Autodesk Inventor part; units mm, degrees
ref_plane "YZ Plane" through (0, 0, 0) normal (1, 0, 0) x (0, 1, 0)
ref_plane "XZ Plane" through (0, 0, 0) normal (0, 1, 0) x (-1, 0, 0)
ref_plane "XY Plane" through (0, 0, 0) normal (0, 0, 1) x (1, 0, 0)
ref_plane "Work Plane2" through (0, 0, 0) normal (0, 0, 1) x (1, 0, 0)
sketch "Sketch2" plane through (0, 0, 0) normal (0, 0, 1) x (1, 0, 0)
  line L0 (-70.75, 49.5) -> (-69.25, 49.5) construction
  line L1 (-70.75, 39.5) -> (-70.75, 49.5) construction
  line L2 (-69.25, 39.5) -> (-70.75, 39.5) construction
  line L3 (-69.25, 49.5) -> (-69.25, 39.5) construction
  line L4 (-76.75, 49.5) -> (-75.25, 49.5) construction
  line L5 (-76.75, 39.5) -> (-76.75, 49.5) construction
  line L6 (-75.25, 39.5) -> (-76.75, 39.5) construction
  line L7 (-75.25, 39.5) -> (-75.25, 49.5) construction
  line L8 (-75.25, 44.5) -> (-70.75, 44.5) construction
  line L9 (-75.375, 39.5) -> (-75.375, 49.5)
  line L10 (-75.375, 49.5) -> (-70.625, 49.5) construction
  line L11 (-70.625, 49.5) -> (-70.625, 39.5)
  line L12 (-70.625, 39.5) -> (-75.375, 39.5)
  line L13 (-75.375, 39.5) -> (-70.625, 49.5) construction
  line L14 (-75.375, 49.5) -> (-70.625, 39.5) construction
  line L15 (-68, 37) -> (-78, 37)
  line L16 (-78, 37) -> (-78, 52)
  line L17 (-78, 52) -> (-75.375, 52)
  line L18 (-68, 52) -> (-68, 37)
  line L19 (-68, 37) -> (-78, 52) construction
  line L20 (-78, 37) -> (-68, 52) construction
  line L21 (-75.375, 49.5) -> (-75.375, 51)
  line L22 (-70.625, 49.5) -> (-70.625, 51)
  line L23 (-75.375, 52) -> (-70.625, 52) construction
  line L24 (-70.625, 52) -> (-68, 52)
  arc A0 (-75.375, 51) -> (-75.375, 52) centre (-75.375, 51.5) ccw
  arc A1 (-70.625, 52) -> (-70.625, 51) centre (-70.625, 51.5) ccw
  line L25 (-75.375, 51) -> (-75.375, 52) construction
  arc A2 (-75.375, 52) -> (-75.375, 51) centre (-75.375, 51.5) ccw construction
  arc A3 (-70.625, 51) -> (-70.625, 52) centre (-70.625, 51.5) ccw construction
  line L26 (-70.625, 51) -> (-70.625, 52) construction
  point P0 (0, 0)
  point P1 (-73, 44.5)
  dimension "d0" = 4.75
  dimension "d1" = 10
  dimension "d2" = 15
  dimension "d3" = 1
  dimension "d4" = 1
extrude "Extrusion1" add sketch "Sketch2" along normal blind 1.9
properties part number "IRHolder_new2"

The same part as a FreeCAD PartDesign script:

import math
import FreeCAD as App
import Part
import Sketcher

V = App.Vector
Q = App.Units.Quantity

doc = App.newDocument("Part")
body = doc.addObject("PartDesign::Body", "Body")

# Sketch on XY plane
sketch1 = body.newObject("Sketcher::SketchObject", "Sketch")
sketch1.AttachmentSupport = (doc.getObject("XY_Plane"), [""])
sketch1.MapMode = "FlatFace"
sketch1.addGeometry(Part.LineSegment(V(-70.6, 39.5, 0), V(-75.4, 39.5, 0)), False)
sketch1.addGeometry(Part.LineSegment(V(-75.4, 39.5, 0), V(-75.4, 51, 0)), False)
sketch1.addGeometry(Part.ArcOfCircle(Part.Circle(V(-75.4, 51.5, 0), V(0, 0, 1), 0.5), math.radians(-90), math.radians(90)), False)
sketch1.addGeometry(Part.LineSegment(V(-75.4, 52, 0), V(-78, 52, 0)), False)
sketch1.addGeometry(Part.LineSegment(V(-78, 52, 0), V(-78, 37, 0)), False)
sketch1.addGeometry(Part.LineSegment(V(-78, 37, 0), V(-68, 37, 0)), False)
sketch1.addGeometry(Part.LineSegment(V(-68, 37, 0), V(-68, 52, 0)), False)
sketch1.addGeometry(Part.LineSegment(V(-68, 52, 0), V(-70.6, 52, 0)), False)
sketch1.addGeometry(Part.ArcOfCircle(Part.Circle(V(-70.6, 51.5, 0), V(0, 0, 1), 0.5), math.radians(90), math.radians(270)), False)
sketch1.addGeometry(Part.LineSegment(V(-70.6, 51, 0), V(-70.6, 39.5, 0)), False)
sketch1.addConstraint(Sketcher.Constraint("Coincident", 0, 2, 1, 1))
sketch1.addConstraint(Sketcher.Constraint("Coincident", 1, 2, 2, 1))
sketch1.addConstraint(Sketcher.Constraint("Tangent", 2, 2, 3, 1))
sketch1.addConstraint(Sketcher.Constraint("Coincident", 3, 2, 4, 1))
sketch1.addConstraint(Sketcher.Constraint("Coincident", 4, 2, 5, 1))
sketch1.addConstraint(Sketcher.Constraint("Coincident", 5, 2, 6, 1))
sketch1.addConstraint(Sketcher.Constraint("Coincident", 6, 2, 7, 1))
sketch1.addConstraint(Sketcher.Constraint("Tangent", 7, 2, 8, 1))
sketch1.addConstraint(Sketcher.Constraint("Coincident", 8, 2, 9, 1))
sketch1.addConstraint(Sketcher.Constraint("Coincident", 9, 2, 0, 1))
sketch1.addConstraint(Sketcher.Constraint("Horizontal", 0))
sketch1.addConstraint(Sketcher.Constraint("Vertical", 1))
sketch1.addConstraint(Sketcher.Constraint("Horizontal", 3))
sketch1.addConstraint(Sketcher.Constraint("Vertical", 4))
sketch1.addConstraint(Sketcher.Constraint("Horizontal", 5))
sketch1.addConstraint(Sketcher.Constraint("Vertical", 6))
sketch1.addConstraint(Sketcher.Constraint("Horizontal", 7))
sketch1.addConstraint(Sketcher.Constraint("Vertical", 9))
sketch1.addConstraint(Sketcher.Constraint("Equal", 2, 8))
sketch1.addConstraint(Sketcher.Constraint("Horizontal", 2, 3, 8, 3))
sketch1.addConstraint(Sketcher.Constraint("Vertical", 2, 3, 0, 2))
sketch1.addConstraint(Sketcher.Constraint("Vertical", 7, 2, 8, 2))
sketch1.addConstraint(Sketcher.Constraint("Equal", 3, 7))
sketch1.addConstraint(Sketcher.Constraint("Radius", 2, Q("0.5 mm")))
sketch1.addConstraint(Sketcher.Constraint("DistanceX", 5, 1, 5, 2, Q("10 mm")))
sketch1.addConstraint(Sketcher.Constraint("DistanceY", 4, 2, 4, 1, Q("15 mm")))
sketch1.addConstraint(Sketcher.Constraint("DistanceX", 0, 2, 0, 1, Q("4.75 mm")))
sketch1.addConstraint(Sketcher.Constraint("DistanceY", 1, 1, 1, 2, Q("11.5 mm")))
sketch1.addConstraint(Sketcher.Constraint("DistanceY", -1, 1, 1, 2, Q("51 mm")))
sketch1.addConstraint(Sketcher.Constraint("DistanceX", 3, 2, -1, 1, Q("78 mm")))
pad1 = body.newObject("PartDesign::Pad", "Pad")
pad1.Profile = sketch1
pad1.Length = 1.9

doc.recompute()
